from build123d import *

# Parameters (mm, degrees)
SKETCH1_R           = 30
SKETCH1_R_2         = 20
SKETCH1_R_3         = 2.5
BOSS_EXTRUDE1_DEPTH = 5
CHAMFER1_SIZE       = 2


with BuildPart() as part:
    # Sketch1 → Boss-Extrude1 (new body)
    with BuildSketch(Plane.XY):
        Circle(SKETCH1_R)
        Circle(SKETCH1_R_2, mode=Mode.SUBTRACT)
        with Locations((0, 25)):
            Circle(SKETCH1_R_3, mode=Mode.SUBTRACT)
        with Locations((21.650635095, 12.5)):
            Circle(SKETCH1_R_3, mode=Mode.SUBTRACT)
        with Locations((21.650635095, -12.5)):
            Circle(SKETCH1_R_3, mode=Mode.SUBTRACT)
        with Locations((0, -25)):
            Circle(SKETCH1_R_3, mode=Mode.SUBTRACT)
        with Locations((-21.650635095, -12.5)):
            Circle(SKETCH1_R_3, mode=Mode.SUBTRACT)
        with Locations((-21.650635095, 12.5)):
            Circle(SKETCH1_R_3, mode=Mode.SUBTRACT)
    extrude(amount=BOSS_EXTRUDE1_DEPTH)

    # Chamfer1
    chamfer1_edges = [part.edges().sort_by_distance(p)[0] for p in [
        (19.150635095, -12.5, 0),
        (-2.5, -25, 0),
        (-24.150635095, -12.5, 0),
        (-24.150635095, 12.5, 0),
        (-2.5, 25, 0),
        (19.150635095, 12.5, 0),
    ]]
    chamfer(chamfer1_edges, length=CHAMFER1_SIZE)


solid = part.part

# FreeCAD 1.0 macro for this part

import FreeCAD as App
import Part
import Sketcher

V = App.Vector


def edges_at(feature, points):
    """Names of the edges that pass closest to the given points."""
    edges = feature.Shape.Edges
    near = lambda p: min(range(len(edges)), key=lambda i: edges[i].distToShape(Part.Vertex(*p))[0])
    return sorted({f"Edge{near(p) + 1}" for p in points})

doc = App.newDocument("Part")
body = doc.addObject("PartDesign::Body", "Body")

sketch1 = body.newObject("Sketcher::SketchObject", "Sketch")
sketch1.AttachmentSupport = (doc.getObject("XY_Plane"), [""])
sketch1.MapMode = "FlatFace"
sketch1.addGeometry([
    Part.Circle(V(0, 0, 0), V(0, 0, 1), 30),
    Part.Circle(V(-21.7, -12.5, 0), V(0, 0, 1), 2.5),
    Part.Circle(V(0, -25, 0), V(0, 0, 1), 2.5),
    Part.Circle(V(21.7, -12.5, 0), V(0, 0, 1), 2.5),
    Part.Circle(V(-21.7, 12.5, 0), V(0, 0, 1), 2.5),
    Part.Circle(V(0, 0, 0), V(0, 0, 1), 20),
    Part.Circle(V(21.7, 12.5, 0), V(0, 0, 1), 2.5),
    Part.Circle(V(0, 25, 0), V(0, 0, 1), 2.5),
], False)
sketch1.addConstraint([
    Sketcher.Constraint("Coincident", 0, 3, -1, 1),
    Sketcher.Constraint("Coincident", 5, 3, -1, 1),
    Sketcher.Constraint("Equal", 1, 2),
    Sketcher.Constraint("Equal", 2, 3),
    Sketcher.Constraint("Equal", 3, 4),
    Sketcher.Constraint("Equal", 4, 6),
    Sketcher.Constraint("Equal", 6, 7),
    Sketcher.Constraint("Symmetric", 3, 3, 4, 3, -1, 1),
    Sketcher.Constraint("Symmetric", 1, 3, 6, 3, -1, 1),
    Sketcher.Constraint("Symmetric", 2, 3, 7, 3, -1, 1),
    Sketcher.Constraint("Symmetric", 1, 3, 3, 3, -2),
    Sketcher.Constraint("PointOnObject", 2, 3, -2),
    Sketcher.Constraint("Diameter", 0, 60.0),
    Sketcher.Constraint("Diameter", 1, 5.0),
    Sketcher.Constraint("Diameter", 5, 40.0),
    Sketcher.Constraint("DistanceY", 2, 3, -1, 1, 25.0),
    Sketcher.Constraint("DistanceY", 1, 3, 4, 3, 25.0),
    Sketcher.Constraint("DistanceX", 1, 3, 3, 3, 43.30127),
])
pad1 = body.newObject("PartDesign::Pad", "Pad")
pad1.Profile = sketch1
pad1.Length = 5
doc.recompute()

chamfer = body.newObject("PartDesign::Chamfer", "Chamfer")
chamfer.Base = (pad1, edges_at(pad1, [
    (19.151, -12.5, 0),
    (-2.5, -25, 0),
    (-24.151, -12.5, 0),
    (-24.151, 12.5, 0),
    (-2.5, 25, 0),
    (19.151, 12.5, 0),
]))
chamfer.Size = 2

doc.recompute()
